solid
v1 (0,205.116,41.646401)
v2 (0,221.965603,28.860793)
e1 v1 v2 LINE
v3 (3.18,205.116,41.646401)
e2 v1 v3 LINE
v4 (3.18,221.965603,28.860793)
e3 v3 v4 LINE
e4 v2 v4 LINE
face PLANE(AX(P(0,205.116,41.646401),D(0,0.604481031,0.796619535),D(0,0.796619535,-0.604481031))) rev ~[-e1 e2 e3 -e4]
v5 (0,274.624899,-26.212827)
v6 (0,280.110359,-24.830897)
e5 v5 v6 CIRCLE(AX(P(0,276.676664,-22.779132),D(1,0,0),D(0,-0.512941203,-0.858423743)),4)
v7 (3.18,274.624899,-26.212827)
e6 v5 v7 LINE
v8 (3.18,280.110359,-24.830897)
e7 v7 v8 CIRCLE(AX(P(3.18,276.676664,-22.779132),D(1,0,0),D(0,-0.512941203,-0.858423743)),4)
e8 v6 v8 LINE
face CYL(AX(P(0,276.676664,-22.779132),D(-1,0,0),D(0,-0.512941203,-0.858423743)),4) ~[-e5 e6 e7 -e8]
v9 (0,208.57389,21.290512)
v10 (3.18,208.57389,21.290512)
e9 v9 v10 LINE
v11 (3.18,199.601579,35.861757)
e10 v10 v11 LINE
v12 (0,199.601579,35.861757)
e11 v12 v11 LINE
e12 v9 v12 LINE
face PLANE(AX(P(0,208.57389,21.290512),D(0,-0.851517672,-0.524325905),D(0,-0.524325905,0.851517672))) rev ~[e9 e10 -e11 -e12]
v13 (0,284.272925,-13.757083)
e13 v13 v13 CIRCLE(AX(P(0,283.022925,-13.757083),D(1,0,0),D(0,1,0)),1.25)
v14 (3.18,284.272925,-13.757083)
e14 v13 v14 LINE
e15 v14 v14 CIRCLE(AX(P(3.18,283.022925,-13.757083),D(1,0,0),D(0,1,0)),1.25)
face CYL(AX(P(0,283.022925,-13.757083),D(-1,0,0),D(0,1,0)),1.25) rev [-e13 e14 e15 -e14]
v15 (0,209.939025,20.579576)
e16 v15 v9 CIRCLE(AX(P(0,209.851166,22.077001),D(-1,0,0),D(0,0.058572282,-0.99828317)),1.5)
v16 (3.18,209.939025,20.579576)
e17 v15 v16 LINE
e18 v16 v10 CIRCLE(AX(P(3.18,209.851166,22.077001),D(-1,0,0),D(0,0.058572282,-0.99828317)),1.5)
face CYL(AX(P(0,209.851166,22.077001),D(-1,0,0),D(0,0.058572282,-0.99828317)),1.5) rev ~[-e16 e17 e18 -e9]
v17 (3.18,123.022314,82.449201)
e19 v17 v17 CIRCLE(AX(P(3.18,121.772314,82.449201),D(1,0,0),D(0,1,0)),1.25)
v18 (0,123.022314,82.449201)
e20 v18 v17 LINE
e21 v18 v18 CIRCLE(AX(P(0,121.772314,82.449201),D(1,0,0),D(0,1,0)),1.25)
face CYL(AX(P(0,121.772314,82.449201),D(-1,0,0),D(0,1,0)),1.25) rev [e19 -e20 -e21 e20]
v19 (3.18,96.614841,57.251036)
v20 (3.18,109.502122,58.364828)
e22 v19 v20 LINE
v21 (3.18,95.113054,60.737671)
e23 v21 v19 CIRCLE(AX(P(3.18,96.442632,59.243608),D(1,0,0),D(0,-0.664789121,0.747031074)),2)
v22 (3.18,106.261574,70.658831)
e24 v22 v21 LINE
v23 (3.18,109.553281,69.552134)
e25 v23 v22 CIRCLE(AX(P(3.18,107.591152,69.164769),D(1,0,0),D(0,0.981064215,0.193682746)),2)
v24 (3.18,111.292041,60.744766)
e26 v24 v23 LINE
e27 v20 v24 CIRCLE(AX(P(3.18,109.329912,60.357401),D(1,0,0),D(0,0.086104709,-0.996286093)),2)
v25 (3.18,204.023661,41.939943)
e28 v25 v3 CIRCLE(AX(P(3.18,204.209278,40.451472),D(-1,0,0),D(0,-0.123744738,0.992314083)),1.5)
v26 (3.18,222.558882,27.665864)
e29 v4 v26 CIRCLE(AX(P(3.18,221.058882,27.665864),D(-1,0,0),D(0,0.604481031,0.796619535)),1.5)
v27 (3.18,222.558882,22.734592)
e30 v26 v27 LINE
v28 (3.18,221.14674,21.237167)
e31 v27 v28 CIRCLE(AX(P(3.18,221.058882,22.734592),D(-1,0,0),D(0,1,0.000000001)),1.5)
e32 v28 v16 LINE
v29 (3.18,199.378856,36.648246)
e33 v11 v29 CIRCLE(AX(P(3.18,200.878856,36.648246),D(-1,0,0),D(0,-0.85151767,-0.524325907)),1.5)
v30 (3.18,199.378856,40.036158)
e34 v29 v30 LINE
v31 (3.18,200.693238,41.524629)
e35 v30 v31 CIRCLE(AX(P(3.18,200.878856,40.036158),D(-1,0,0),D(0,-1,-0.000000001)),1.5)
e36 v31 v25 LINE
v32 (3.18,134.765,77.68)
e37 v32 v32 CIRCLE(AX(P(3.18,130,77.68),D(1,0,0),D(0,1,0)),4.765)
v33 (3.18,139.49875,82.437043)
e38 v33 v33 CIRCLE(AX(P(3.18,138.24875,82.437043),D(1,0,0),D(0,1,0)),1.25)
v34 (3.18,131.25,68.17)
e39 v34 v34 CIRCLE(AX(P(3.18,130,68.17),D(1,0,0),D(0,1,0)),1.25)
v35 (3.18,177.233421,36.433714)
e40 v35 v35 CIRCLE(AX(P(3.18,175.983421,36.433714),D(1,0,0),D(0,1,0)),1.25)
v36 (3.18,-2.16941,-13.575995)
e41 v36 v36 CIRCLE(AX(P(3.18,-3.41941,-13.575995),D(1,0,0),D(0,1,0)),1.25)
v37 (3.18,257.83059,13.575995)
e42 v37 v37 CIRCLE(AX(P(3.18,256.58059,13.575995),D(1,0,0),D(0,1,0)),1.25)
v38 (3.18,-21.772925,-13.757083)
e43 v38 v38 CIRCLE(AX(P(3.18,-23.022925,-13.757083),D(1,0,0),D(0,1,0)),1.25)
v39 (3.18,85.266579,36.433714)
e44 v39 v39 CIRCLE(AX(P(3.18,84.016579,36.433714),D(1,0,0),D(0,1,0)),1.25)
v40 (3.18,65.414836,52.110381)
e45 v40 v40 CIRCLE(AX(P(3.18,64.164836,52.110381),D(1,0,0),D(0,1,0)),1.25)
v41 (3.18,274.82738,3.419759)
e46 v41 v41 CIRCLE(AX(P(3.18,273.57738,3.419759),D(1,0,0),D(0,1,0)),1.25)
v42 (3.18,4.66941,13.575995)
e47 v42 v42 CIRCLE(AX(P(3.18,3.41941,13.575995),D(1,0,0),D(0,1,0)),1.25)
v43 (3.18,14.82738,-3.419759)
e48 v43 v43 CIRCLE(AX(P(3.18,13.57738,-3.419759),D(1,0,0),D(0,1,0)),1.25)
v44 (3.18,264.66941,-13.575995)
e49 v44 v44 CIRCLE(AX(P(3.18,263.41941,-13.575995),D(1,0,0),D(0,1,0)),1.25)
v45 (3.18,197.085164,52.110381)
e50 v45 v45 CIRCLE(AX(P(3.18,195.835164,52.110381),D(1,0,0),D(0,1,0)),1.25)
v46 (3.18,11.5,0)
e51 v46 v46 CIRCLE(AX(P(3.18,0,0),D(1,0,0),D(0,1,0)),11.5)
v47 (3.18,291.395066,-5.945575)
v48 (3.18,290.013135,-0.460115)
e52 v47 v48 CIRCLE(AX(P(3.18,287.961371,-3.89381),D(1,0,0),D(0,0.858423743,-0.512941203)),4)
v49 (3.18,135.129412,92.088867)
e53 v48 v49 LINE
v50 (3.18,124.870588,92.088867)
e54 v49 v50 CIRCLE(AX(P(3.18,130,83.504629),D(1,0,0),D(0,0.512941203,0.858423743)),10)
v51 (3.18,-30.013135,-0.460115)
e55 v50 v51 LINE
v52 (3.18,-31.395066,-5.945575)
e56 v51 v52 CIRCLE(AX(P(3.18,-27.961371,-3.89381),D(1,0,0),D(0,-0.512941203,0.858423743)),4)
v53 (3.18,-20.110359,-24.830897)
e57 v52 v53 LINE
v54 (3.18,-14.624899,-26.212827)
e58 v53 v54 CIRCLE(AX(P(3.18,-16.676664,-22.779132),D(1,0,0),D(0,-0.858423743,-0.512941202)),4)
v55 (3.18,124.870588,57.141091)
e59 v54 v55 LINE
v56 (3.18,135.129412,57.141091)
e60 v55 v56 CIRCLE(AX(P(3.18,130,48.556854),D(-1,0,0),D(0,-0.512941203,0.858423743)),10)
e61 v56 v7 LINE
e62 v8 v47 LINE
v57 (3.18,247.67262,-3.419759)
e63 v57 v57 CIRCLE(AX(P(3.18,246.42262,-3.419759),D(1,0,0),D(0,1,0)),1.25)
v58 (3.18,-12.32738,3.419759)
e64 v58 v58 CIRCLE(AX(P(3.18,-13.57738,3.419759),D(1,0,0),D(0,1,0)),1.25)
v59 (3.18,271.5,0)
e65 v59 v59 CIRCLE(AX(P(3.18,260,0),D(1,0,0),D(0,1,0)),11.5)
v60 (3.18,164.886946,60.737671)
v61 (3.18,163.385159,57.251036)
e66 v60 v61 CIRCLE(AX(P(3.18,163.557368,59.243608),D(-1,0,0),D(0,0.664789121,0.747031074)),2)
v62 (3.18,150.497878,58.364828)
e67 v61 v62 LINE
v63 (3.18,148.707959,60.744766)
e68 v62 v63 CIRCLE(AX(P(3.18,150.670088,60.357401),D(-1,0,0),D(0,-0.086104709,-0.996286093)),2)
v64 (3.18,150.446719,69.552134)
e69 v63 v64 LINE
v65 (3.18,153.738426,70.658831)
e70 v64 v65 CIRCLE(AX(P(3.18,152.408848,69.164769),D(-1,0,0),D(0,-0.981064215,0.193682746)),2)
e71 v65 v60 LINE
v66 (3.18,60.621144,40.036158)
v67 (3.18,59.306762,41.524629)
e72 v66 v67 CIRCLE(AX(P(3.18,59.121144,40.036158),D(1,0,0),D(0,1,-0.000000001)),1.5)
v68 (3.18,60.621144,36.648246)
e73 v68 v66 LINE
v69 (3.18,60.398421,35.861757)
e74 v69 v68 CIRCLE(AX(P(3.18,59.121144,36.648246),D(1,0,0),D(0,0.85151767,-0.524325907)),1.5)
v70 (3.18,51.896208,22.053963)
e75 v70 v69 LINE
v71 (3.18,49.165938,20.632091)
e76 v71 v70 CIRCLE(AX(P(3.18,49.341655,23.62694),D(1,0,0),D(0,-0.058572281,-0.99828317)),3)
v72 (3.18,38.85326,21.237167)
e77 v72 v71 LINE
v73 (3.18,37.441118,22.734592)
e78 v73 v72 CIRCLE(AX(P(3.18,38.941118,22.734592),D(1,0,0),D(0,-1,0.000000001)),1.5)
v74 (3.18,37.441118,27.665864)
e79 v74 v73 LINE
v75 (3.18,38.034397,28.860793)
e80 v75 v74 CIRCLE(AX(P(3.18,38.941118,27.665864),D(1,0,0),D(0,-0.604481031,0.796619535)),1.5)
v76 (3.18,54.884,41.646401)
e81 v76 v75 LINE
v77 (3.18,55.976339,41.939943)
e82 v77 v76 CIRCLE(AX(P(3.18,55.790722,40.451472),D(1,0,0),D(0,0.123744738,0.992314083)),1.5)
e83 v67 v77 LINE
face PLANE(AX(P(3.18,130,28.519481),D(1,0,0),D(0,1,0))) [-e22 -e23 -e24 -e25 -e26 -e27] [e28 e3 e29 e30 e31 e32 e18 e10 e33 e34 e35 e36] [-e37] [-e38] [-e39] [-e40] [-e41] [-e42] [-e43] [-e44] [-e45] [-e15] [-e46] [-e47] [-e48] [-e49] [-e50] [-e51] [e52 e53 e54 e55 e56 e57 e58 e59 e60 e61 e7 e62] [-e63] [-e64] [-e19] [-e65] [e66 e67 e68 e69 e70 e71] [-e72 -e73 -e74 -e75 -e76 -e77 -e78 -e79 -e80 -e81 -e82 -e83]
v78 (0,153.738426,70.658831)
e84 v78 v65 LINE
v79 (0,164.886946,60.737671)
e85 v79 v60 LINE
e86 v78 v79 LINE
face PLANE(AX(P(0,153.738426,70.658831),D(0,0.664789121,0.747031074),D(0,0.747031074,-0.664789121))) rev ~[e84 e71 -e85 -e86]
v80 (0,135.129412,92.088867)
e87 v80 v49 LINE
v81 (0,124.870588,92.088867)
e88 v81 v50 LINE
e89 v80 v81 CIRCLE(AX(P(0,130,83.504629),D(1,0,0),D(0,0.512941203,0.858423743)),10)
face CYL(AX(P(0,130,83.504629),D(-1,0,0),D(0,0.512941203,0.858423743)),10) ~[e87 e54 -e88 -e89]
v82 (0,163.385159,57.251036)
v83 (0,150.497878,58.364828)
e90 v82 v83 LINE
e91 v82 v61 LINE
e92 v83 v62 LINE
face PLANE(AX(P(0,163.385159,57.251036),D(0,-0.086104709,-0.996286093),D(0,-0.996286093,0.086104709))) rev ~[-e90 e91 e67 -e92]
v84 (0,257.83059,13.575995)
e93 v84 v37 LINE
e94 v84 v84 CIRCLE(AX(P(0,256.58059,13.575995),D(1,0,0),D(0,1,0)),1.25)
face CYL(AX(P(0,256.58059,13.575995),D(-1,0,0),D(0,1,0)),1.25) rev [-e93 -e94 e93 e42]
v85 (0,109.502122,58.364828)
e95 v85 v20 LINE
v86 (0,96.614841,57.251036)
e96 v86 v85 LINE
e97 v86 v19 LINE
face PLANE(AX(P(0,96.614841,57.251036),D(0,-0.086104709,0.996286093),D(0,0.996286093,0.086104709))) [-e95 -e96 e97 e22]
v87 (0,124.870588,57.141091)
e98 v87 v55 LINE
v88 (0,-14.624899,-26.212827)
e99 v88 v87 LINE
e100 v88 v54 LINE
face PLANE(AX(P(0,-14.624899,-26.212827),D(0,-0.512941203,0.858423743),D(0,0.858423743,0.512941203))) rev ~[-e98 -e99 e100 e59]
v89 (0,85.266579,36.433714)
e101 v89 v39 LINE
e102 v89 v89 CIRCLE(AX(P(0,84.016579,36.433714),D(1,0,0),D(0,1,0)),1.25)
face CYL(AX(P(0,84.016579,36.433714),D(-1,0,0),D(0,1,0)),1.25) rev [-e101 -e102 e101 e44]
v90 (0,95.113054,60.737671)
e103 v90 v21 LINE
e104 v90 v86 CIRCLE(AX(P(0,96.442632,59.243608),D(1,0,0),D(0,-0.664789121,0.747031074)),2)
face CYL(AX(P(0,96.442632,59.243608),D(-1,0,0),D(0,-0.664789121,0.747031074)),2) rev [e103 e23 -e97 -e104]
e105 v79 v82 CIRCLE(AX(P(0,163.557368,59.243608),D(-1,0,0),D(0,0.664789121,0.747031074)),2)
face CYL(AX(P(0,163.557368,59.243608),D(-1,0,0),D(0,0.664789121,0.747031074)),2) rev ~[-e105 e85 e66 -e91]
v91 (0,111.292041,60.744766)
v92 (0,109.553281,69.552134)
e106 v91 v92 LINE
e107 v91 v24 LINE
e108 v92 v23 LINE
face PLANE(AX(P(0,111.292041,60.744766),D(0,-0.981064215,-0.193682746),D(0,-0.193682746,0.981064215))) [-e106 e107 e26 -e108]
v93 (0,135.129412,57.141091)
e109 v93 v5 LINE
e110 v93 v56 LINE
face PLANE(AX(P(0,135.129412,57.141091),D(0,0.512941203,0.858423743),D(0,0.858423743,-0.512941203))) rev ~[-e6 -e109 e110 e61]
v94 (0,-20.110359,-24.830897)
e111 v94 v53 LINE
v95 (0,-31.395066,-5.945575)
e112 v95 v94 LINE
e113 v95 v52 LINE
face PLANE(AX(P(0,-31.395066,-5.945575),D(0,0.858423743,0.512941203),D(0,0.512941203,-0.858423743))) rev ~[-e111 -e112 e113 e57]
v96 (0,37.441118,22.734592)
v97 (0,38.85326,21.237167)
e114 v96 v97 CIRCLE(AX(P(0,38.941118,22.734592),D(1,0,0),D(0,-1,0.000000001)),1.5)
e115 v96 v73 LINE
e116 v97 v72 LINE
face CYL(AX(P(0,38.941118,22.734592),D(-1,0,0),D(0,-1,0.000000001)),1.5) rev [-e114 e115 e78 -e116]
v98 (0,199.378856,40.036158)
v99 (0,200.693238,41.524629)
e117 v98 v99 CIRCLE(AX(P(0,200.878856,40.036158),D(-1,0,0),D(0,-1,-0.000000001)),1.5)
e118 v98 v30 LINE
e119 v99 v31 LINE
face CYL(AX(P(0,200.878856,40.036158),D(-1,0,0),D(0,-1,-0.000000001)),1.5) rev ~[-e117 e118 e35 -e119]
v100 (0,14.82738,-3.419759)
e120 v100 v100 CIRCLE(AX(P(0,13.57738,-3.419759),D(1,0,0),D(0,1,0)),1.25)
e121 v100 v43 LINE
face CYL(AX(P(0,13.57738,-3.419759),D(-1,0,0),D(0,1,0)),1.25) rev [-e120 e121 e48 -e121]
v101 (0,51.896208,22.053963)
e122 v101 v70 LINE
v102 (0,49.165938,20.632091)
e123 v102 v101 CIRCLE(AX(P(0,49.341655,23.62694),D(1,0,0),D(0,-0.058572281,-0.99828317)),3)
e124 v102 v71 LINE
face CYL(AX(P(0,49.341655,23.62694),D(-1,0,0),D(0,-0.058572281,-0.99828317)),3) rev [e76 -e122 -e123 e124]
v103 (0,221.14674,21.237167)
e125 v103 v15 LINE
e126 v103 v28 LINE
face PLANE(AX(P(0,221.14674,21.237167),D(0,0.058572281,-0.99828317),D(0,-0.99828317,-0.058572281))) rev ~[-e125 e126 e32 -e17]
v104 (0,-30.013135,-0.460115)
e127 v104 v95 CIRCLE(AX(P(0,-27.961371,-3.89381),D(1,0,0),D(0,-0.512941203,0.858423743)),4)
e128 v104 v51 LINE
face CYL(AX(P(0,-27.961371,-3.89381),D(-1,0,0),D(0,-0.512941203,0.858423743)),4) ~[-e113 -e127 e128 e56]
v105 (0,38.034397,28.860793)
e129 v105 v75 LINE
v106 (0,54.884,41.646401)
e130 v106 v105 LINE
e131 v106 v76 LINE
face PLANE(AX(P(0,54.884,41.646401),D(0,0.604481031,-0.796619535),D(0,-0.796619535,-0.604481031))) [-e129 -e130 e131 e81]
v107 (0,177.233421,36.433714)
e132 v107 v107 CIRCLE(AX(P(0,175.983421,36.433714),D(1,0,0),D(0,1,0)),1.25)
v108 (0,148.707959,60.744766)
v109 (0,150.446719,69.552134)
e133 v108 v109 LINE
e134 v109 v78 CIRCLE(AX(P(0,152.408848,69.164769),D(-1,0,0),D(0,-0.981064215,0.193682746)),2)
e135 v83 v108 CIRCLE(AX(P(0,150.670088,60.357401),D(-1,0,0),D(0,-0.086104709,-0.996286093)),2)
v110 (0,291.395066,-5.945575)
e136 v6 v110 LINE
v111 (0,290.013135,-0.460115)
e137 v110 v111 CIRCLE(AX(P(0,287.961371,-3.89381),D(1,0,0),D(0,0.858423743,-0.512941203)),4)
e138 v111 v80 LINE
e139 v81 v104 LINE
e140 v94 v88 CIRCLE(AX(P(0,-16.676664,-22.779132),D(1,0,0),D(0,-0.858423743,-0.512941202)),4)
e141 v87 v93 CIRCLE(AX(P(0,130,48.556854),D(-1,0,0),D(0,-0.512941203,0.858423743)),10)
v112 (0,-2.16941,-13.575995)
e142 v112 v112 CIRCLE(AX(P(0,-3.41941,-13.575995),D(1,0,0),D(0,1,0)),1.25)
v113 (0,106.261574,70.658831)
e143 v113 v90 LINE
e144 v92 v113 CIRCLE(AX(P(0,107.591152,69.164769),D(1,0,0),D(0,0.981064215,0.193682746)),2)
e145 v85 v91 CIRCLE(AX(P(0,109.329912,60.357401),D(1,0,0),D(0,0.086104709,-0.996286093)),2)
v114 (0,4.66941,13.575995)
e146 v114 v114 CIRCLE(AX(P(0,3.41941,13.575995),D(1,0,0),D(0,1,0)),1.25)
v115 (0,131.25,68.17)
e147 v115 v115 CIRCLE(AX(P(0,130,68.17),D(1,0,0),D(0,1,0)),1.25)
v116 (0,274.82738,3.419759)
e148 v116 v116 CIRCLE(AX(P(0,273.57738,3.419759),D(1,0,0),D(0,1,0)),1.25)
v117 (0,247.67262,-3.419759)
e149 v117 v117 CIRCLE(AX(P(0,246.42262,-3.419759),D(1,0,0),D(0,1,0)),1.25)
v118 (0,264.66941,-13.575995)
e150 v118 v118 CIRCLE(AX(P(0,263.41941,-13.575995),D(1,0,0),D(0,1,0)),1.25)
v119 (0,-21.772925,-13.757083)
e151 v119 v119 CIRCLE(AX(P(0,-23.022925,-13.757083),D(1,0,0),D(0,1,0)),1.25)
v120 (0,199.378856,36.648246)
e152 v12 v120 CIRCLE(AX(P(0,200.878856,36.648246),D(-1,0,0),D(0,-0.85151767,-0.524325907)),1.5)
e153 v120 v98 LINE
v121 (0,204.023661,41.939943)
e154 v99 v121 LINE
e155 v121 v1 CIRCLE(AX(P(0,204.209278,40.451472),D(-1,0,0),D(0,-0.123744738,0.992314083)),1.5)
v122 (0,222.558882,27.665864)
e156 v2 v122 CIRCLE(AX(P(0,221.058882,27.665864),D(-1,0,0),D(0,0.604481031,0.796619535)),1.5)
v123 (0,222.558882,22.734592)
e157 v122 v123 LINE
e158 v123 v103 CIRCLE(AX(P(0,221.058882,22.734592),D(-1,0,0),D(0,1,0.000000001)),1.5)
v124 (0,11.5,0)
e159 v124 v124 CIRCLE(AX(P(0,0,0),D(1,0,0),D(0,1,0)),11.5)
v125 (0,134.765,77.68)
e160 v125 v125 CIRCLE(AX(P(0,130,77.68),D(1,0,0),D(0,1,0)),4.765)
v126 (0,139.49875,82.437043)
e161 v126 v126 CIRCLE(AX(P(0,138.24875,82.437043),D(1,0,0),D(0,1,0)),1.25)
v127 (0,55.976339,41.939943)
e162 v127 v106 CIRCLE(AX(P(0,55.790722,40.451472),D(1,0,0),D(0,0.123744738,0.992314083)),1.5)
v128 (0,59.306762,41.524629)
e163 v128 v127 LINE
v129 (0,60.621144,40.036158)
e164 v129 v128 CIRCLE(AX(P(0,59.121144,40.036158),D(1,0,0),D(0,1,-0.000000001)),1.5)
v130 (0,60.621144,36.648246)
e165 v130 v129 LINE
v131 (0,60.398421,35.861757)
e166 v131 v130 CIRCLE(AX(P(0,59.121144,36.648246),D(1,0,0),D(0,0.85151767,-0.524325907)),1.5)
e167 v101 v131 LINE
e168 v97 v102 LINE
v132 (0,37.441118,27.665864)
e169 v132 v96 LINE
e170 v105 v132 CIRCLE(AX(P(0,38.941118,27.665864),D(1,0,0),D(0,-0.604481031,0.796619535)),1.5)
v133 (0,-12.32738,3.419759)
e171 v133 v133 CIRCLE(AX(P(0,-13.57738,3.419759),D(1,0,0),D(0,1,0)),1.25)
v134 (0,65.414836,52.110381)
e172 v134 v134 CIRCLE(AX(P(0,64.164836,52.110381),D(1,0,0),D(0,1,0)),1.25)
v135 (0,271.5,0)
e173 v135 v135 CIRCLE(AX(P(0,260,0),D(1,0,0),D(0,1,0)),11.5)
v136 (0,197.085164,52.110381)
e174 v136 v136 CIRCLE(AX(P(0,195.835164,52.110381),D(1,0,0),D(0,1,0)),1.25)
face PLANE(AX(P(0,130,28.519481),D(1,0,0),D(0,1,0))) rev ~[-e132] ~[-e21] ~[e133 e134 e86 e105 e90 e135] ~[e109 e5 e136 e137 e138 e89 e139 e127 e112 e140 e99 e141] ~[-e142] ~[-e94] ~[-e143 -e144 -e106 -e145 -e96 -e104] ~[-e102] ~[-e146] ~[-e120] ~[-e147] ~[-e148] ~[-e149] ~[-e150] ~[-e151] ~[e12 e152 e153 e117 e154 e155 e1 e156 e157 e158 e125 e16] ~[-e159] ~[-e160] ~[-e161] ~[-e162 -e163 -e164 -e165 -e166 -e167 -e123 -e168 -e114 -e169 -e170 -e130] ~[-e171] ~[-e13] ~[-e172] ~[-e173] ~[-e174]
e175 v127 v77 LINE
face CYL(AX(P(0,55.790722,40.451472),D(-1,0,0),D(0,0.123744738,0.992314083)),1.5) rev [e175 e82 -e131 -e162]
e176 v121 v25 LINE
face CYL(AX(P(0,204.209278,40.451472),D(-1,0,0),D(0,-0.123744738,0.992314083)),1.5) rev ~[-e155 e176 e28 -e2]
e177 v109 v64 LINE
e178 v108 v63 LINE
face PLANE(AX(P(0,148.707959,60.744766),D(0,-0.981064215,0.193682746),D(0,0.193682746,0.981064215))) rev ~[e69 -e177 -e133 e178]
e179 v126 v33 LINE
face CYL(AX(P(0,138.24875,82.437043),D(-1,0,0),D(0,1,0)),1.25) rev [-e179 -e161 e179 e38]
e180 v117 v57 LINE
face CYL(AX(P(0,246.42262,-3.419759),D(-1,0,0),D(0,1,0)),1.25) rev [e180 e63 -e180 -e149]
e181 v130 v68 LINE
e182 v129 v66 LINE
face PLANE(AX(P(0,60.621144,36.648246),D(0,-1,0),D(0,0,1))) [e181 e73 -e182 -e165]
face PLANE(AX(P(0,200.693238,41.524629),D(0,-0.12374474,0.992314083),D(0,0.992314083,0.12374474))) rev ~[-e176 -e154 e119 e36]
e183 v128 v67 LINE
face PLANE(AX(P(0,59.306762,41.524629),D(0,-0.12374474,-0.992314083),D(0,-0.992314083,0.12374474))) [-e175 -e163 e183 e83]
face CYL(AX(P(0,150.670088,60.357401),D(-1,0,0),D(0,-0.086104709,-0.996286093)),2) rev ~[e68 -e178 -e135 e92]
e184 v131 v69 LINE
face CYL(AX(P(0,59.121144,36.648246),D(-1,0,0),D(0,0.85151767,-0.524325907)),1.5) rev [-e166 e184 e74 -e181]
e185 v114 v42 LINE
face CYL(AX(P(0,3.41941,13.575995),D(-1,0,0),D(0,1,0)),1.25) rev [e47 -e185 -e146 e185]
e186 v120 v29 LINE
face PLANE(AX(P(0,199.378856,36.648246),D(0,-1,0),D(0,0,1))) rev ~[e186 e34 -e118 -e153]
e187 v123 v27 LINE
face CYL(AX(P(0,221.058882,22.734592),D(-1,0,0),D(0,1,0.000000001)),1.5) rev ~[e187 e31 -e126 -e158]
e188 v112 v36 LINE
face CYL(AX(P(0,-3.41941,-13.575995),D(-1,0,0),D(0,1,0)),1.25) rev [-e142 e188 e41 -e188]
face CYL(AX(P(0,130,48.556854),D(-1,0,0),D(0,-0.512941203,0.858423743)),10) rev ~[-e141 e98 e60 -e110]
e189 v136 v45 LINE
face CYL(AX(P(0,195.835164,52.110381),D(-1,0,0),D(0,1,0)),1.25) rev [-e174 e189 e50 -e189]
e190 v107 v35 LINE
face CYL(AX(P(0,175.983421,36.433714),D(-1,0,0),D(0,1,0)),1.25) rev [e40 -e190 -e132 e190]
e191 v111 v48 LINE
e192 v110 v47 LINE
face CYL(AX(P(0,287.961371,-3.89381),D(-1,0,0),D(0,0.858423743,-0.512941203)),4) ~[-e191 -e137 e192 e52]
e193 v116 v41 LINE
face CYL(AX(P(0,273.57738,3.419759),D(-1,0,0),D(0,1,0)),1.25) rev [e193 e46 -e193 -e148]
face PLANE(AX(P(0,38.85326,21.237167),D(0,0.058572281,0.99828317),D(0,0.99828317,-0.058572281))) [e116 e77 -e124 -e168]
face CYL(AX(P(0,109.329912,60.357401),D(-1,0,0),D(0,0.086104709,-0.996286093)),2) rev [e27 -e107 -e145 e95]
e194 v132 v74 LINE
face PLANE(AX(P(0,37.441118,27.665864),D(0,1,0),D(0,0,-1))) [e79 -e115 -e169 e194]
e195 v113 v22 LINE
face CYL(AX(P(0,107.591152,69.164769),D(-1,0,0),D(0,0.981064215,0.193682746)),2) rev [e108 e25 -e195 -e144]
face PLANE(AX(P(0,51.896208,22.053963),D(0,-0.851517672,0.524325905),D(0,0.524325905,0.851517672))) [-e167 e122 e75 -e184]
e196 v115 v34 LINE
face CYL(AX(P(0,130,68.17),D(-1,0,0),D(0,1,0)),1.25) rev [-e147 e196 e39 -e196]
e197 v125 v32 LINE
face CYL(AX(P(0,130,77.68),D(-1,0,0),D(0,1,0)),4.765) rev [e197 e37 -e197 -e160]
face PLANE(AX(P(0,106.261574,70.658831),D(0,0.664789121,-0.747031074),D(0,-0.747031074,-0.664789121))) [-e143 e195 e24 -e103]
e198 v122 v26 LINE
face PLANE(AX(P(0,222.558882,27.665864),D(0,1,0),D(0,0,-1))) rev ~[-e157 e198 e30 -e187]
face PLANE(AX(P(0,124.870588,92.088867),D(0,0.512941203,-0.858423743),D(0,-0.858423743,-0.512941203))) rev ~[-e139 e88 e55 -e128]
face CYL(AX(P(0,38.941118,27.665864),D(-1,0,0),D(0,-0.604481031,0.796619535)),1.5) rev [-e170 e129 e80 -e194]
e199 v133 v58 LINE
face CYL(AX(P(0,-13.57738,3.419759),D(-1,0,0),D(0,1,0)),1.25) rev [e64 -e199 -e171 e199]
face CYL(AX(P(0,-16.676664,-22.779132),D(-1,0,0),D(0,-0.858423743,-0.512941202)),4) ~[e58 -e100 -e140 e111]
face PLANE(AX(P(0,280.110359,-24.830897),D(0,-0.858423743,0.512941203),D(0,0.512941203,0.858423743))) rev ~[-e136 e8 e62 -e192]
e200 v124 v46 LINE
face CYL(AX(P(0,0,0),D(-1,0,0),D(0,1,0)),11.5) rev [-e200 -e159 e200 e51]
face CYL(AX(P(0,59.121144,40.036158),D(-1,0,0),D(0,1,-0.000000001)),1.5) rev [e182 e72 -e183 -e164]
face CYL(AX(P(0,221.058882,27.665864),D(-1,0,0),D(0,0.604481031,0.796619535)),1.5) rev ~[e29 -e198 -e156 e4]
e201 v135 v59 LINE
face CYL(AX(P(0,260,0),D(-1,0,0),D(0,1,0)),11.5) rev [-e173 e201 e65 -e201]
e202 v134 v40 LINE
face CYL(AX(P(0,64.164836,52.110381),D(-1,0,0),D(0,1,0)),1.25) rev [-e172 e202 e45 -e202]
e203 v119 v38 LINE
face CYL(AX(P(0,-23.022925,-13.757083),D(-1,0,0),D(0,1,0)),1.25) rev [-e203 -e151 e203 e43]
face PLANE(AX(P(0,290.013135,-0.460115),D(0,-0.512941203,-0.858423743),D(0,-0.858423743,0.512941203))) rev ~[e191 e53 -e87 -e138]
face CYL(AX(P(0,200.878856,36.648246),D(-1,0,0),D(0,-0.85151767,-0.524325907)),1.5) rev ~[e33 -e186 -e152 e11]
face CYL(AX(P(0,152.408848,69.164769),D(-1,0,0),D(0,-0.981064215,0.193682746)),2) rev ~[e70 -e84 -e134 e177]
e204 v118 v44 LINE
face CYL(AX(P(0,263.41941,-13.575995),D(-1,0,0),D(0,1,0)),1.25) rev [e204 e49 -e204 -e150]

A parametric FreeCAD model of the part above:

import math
import FreeCAD as App
import Part
import Sketcher

V = App.Vector

doc = App.newDocument("Part")
body = doc.addObject("PartDesign::Body", "Body")

# Sketch on YZ plane
sketch1 = body.newObject("Sketcher::SketchObject", "Sketch")
sketch1.AttachmentSupport = (doc.getObject("YZ_Plane"), [""])
sketch1.MapMode = "FlatFace"
sketch1.addGeometry(Part.LineSegment(V(-31.395066, -5.945575, 0), V(-20.110359, -24.830897, 0)), False)
sketch1.addGeometry(Part.ArcOfCircle(Part.Circle(V(-16.676664, -22.779132, 0), V(0, 0, 1), 4), math.radians(-149.140059), math.radians(-59.140059)), False)
sketch1.addGeometry(Part.LineSegment(V(-14.624899, -26.212827, 0), V(124.870588, 57.141091, 0)), False)
sketch1.addGeometry(Part.ArcOfCircle(Part.Circle(V(130, 48.556854, 0), V(0, 0, 1), 10), math.radians(59.140059), math.radians(120.859941)), False)
sketch1.addGeometry(Part.LineSegment(V(135.129412, 57.141091, 0), V(274.624899, -26.212827, 0)), False)
sketch1.addGeometry(Part.ArcOfCircle(Part.Circle(V(276.676664, -22.779132, 0), V(0, 0, 1), 4), math.radians(-120.859941), math.radians(-30.859941)), False)
sketch1.addGeometry(Part.LineSegment(V(280.110359, -24.830897, 0), V(291.395066, -5.945575, 0)), False)
sketch1.addGeometry(Part.ArcOfCircle(Part.Circle(V(287.961371, -3.89381, 0), V(0, 0, 1), 4), math.radians(-30.859941), math.radians(59.140059)), False)
sketch1.addGeometry(Part.LineSegment(V(290.013135, -0.460115, 0), V(135.129412, 92.088867, 0)), False)
sketch1.addGeometry(Part.ArcOfCircle(Part.Circle(V(130, 83.504629, 0), V(0, 0, 1), 10), math.radians(59.140059), math.radians(120.859941)), False)
sketch1.addGeometry(Part.LineSegment(V(124.870588, 92.088867, 0), V(-30.013135, -0.460115, 0)), False)
sketch1.addGeometry(Part.ArcOfCircle(Part.Circle(V(-27.961371, -3.89381, 0), V(0, 0, 1), 4), math.radians(120.859941), math.radians(210.859941)), False)
sketch1.addConstraint(Sketcher.Constraint("Tangent", 0, 2, 1, 1))
sketch1.addConstraint(Sketcher.Constraint("Tangent", 1, 2, 2, 1))
sketch1.addConstraint(Sketcher.Constraint("Tangent", 2, 2, 3, 2))
sketch1.addConstraint(Sketcher.Constraint("Tangent", 3, 1, 4, 1))
sketch1.addConstraint(Sketcher.Constraint("Tangent", 4, 2, 5, 1))
sketch1.addConstraint(Sketcher.Constraint("Tangent", 5, 2, 6, 1))
sketch1.addConstraint(Sketcher.Constraint("Tangent", 6, 2, 7, 1))
sketch1.addConstraint(Sketcher.Constraint("Tangent", 7, 2, 8, 1))
sketch1.addConstraint(Sketcher.Constraint("Tangent", 8, 2, 9, 1))
sketch1.addConstraint(Sketcher.Constraint("Tangent", 9, 2, 10, 1))
sketch1.addConstraint(Sketcher.Constraint("Tangent", 10, 2, 11, 1))
sketch1.addConstraint(Sketcher.Constraint("Tangent", 11, 2, 0, 1))
sketch1.addConstraint(Sketcher.Constraint("Equal", 1, 5))
sketch1.addConstraint(Sketcher.Constraint("Equal", 5, 7))
sketch1.addConstraint(Sketcher.Constraint("Equal", 3, 9))
sketch1.addConstraint(Sketcher.Constraint("Equal", 7, 11))
sketch1.addConstraint(Sketcher.Constraint("Perpendicular", 0, 2))
sketch1.addConstraint(Sketcher.Constraint("Perpendicular", 4, 6))
sketch1.addConstraint(Sketcher.Constraint("Perpendicular", 6, 8))
sketch1.addConstraint(Sketcher.Constraint("Parallel", 2, 10))
sketch1.addConstraint(Sketcher.Constraint("Horizontal", 1, 3, 5, 3))
sketch1.addConstraint(Sketcher.Constraint("Horizontal", 7, 3, 11, 3))
sketch1.addConstraint(Sketcher.Constraint("Horizontal", 2, 2, 3, 1))
sketch1.addConstraint(Sketcher.Constraint("Radius", 1, 4.0))
sketch1.addConstraint(Sketcher.Constraint("Radius", 3, 10.0))
sketch1.addConstraint(Sketcher.Constraint("Distance", 0, 22.0))
sketch1.addConstraint(Sketcher.Constraint("DistanceX", -1, 1, 3, 3, 130.0))
sketch1.addConstraint(Sketcher.Constraint("DistanceX", 1, 2, -1, 1, 14.624899))
sketch1.addConstraint(Sketcher.Constraint("DistanceY", 11, 3, 2, 2, 61.034902))
sketch1.addConstraint(Sketcher.Constraint("DistanceY", 7, 3, -1, 1, 3.89381))
pad1 = body.newObject("PartDesign::Pad", "Pad")
pad1.Profile = sketch1
pad1.Length = 3.18

# Sketch on YZ plane
sketch2 = body.newObject("Sketcher::SketchObject", "Sketch001")
sketch2.AttachmentSupport = (doc.getObject("YZ_Plane"), [""])
sketch2.MapMode = "FlatFace"
sketch2.addGeometry(Part.Circle(V(260, 0, 0), V(0, 0, 1), 11.5), False)
sketch2.addGeometry(Part.Circle(V(0, 0, 0), V(0, 0, 1), 11.5), False)
sketch2.addConstraint(Sketcher.Constraint("Coincident", 1, 3, -1, 1))
sketch2.addConstraint(Sketcher.Constraint("Equal", 0, 1))
sketch2.addConstraint(Sketcher.Constraint("PointOnObject", 0, 3, -1))
sketch2.addConstraint(Sketcher.Constraint("Diameter", 0, 23.0))
sketch2.addConstraint(Sketcher.Constraint("DistanceX", -1, 1, 0, 3, 260.0))
pocket1 = body.newObject("PartDesign::Pocket", "Pocket")
pocket1.Profile = sketch2
pocket1.Length = 3.18
pocket1.Reversed = True

# Sketch on YZ plane
sketch3 = body.newObject("Sketcher::SketchObject", "Sketch002")
sketch3.AttachmentSupport = (doc.getObject("YZ_Plane"), [""])
sketch3.MapMode = "FlatFace"
sketch3.addGeometry(Part.Circle(V(3.41941, 13.575995, 0), V(0, 0, 1), 1.25), False)
sketch3.addGeometry(Part.Circle(V(-3.41941, -13.575995, 0), V(0, 0, 1), 1.25), False)
sketch3.addGeometry(Part.Circle(V(13.57738, -3.419759, 0), V(0, 0, 1), 1.25), False)
sketch3.addGeometry(Part.Circle(V(-13.57738, 3.419759, 0), V(0, 0, 1), 1.25), False)
sketch3.addGeometry(Part.Circle(V(273.57738, 3.419759, 0), V(0, 0, 1), 1.25), False)
sketch3.addGeometry(Part.Circle(V(246.42262, -3.419759, 0), V(0, 0, 1), 1.25), False)
sketch3.addGeometry(Part.Circle(V(263.41941, -13.575995, 0), V(0, 0, 1), 1.25), False)
sketch3.addGeometry(Part.Circle(V(256.58059, 13.575995, 0), V(0, 0, 1), 1.25), False)
sketch3.addConstraint(Sketcher.Constraint("Equal", 0, 1))
sketch3.addConstraint(Sketcher.Constraint("Equal", 1, 2))
sketch3.addConstraint(Sketcher.Constraint("Equal", 2, 3))
sketch3.addConstraint(Sketcher.Constraint("Equal", 3, 4))
sketch3.addConstraint(Sketcher.Constraint("Equal", 4, 5))
sketch3.addConstraint(Sketcher.Constraint("Equal", 5, 6))
sketch3.addConstraint(Sketcher.Constraint("Equal", 6, 7))
sketch3.addConstraint(Sketcher.Constraint("Symmetric", 0, 3, 1, 3, -1, 1))
sketch3.addConstraint(Sketcher.Constraint("Symmetric", 2, 3, 3, 3, -1, 1))
sketch3.addConstraint(Sketcher.Constraint("Horizontal", 3, 3, 4, 3))
sketch3.addConstraint(Sketcher.Constraint("Horizontal", 2, 3, 5, 3))
sketch3.addConstraint(Sketcher.Constraint("Horizontal", 1, 3, 6, 3))
sketch3.addConstraint(Sketcher.Constraint("Horizontal", 0, 3, 7, 3))
sketch3.addConstraint(Sketcher.Constraint("Diameter", 0, 2.5))
sketch3.addConstraint(Sketcher.Constraint("DistanceX", 2, 3, 4, 3, 260.0))
sketch3.addConstraint(Sketcher.Constraint("DistanceX", 3, 3, 5, 3, 260.0))
sketch3.addConstraint(Sketcher.Constraint("DistanceX", 0, 3, 6, 3, 260.0))
sketch3.addConstraint(Sketcher.Constraint("DistanceX", -1, 1, 0, 3, 3.41941))
sketch3.addConstraint(Sketcher.Constraint("DistanceX", -1, 1, 2, 3, 13.57738))
sketch3.addConstraint(Sketcher.Constraint("DistanceY", 2, 3, -1, 1, 3.419759))
sketch3.addConstraint(Sketcher.Constraint("DistanceX", -1, 1, 7, 3, 256.58059))
sketch3.addConstraint(Sketcher.Constraint("DistanceY", 1, 3, 0, 3, 27.15199))
pocket2 = body.newObject("PartDesign::Pocket", "Pocket001")
pocket2.Profile = sketch3
pocket2.Length = 3.18
pocket2.Reversed = True

# Sketch on YZ plane
sketch4 = body.newObject("Sketcher::SketchObject", "Sketch003")
sketch4.AttachmentSupport = (doc.getObject("YZ_Plane"), [""])
sketch4.MapMode = "FlatFace"
sketch4.addGeometry(Part.Circle(V(64.164836, 52.110381, 0), V(0, 0, 1), 1.25), False)
sketch4.addGeometry(Part.Circle(V(84.016579, 36.433714, 0), V(0, 0, 1), 1.25), False)
sketch4.addGeometry(Part.Circle(V(130, 77.68, 0), V(0, 0, 1), 4.765), False)
sketch4.addGeometry(Part.Circle(V(130, 68.17, 0), V(0, 0, 1), 1.25), False)
sketch4.addGeometry(Part.Circle(V(121.772314, 82.449201, 0), V(0, 0, 1), 1.25), False)
sketch4.addGeometry(Part.Circle(V(138.24875, 82.437043, 0), V(0, 0, 1), 1.25), False)
sketch4.addGeometry(Part.Circle(V(175.983421, 36.433714, 0), V(0, 0, 1), 1.25), False)
sketch4.addGeometry(Part.Circle(V(195.835164, 52.110381, 0), V(0, 0, 1), 1.25), False)
sketch4.addGeometry(Part.Circle(V(-23.022925, -13.757083, 0), V(0, 0, 1), 1.25), False)
sketch4.addGeometry(Part.Circle(V(283.022925, -13.757083, 0), V(0, 0, 1), 1.25), False)
sketch4.addConstraint(Sketcher.Constraint("Equal", 0, 1))
sketch4.addConstraint(Sketcher.Constraint("Equal", 1, 3))
sketch4.addConstraint(Sketcher.Constraint("Equal", 3, 4))
sketch4.addConstraint(Sketcher.Constraint("Equal", 4, 5))
sketch4.addConstraint(Sketcher.Constraint("Equal", 5, 6))
sketch4.addConstraint(Sketcher.Constraint("Equal", 6, 7))
sketch4.addConstraint(Sketcher.Constraint("Equal", 7, 8))
sketch4.addConstraint(Sketcher.Constraint("Equal", 8, 9))
sketch4.addConstraint(Sketcher.Constraint("Horizontal", 1, 3, 6, 3))
sketch4.addConstraint(Sketcher.Constraint("Horizontal", 0, 3, 7, 3))
sketch4.addConstraint(Sketcher.Constraint("Horizontal", 8, 3, 9, 3))
sketch4.addConstraint(Sketcher.Constraint("Vertical", 2, 3, 3, 3))
sketch4.addConstraint(Sketcher.Constraint("Diameter", 0, 2.5))
sketch4.addConstraint(Sketcher.Constraint("Diameter", 2, 9.53))
sketch4.addConstraint(Sketcher.Constraint("DistanceX", -1, 1, 2, 3, 130.0))
sketch4.addConstraint(Sketcher.Constraint("DistanceY", -1, 1, 2, 3, 77.68))
sketch4.addConstraint(Sketcher.Constraint("DistanceY", -1, 1, 3, 3, 68.17))
sketch4.addConstraint(Sketcher.Constraint("DistanceY", -1, 1, 4, 3, 82.449201))
sketch4.addConstraint(Sketcher.Constraint("DistanceY", -1, 1, 0, 3, 52.110381))
sketch4.addConstraint(Sketcher.Constraint("DistanceX", -1, 1, 1, 3, 84.016579))
sketch4.addConstraint(Sketcher.Constraint("DistanceX", -1, 1, 5, 3, 138.24875))
sketch4.addConstraint(Sketcher.Constraint("DistanceX", -1, 1, 6, 3, 175.983421))
sketch4.addConstraint(Sketcher.Constraint("DistanceX", 0, 3, 4, 3, 57.607478))
sketch4.addConstraint(Sketcher.Constraint("DistanceY", 1, 3, 5, 3, 46.003329))
sketch4.addConstraint(Sketcher.Constraint("DistanceX", 4, 3, 7, 3, 74.062851))
sketch4.addConstraint(Sketcher.Constraint("DistanceX", 8, 3, 0, 3, 87.18776))
sketch4.addConstraint(Sketcher.Constraint("DistanceX", 7, 3, 9, 3, 87.18776))
sketch4.addConstraint(Sketcher.Constraint("DistanceX", -1, 1, 0, 3, 64.164836))
sketch4.addConstraint(Sketcher.Constraint("DistanceY", -1, 1, 1, 3, 36.433714))
sketch4.addConstraint(Sketcher.Constraint("DistanceY", 8, 3, -1, 1, 13.757083))
pocket3 = body.newObject("PartDesign::Pocket", "Pocket002")
pocket3.Profile = sketch4
pocket3.Length = 3.18
pocket3.Reversed = True

# Sketch on YZ plane
sketch5 = body.newObject("Sketcher::SketchObject", "Sketch004")
sketch5.AttachmentSupport = (doc.getObject("YZ_Plane"), [""])
sketch5.MapMode = "FlatFace"
sketch5.addGeometry(Part.LineSegment(V(54.884, 41.646401, 0), V(38.034397, 28.860793, 0)), False)
sketch5.addGeometry(Part.ArcOfCircle(Part.Circle(V(38.941118, 27.665864, 0), V(0, 0, 1), 1.5), math.radians(127.191506), math.radians(180)), False)
sketch5.addGeometry(Part.LineSegment(V(37.441118, 27.665864, 0), V(37.441118, 22.734592, 0)), False)
sketch5.addGeometry(Part.ArcOfCircle(Part.Circle(V(38.941118, 22.734592, 0), V(0, 0, 1), 1.5), math.radians(180), math.radians(266.642134)), False)
sketch5.addGeometry(Part.LineSegment(V(38.85326, 21.237167, 0), V(49.165938, 20.632091, 0)), False)
sketch5.addGeometry(Part.ArcOfCircle(Part.Circle(V(49.341655, 23.62694, 0), V(0, 0, 1), 3), math.radians(-93.357866), math.radians(-31.622875)), False)
sketch5.addGeometry(Part.LineSegment(V(51.896208, 22.053963, 0), V(60.398421, 35.861757, 0)), False)
sketch5.addGeometry(Part.ArcOfCircle(Part.Circle(V(59.121144, 36.648246, 0), V(0, 0, 1), 1.5), math.radians(-31.622875), math.radians(0)), False)
sketch5.addGeometry(Part.LineSegment(V(60.621144, 36.648246, 0), V(60.621144, 40.036158, 0)), False)
sketch5.addGeometry(Part.ArcOfCircle(Part.Circle(V(59.121144, 40.036158, 0), V(0, 0, 1), 1.5), math.radians(0), math.radians(82.891728)), False)
sketch5.addGeometry(Part.LineSegment(V(59.306762, 41.524629, 0), V(55.976339, 41.939943, 0)), False)
sketch5.addGeometry(Part.ArcOfCircle(Part.Circle(V(55.790722, 40.451472, 0), V(0, 0, 1), 1.5), math.radians(82.891728), math.radians(127.191506)), False)
sketch5.addGeometry(Part.LineSegment(V(204.023661, 41.939943, 0), V(200.693238, 41.524629, 0)), False)
sketch5.addGeometry(Part.ArcOfCircle(Part.Circle(V(200.878856, 40.036158, 0), V(0, 0, 1), 1.5), math.radians(97.108272), math.radians(180)), False)
sketch5.addGeometry(Part.LineSegment(V(199.378856, 40.036158, 0), V(199.378856, 36.648246, 0)), False)
sketch5.addGeometry(Part.ArcOfCircle(Part.Circle(V(200.878856, 36.648246, 0), V(0, 0, 1), 1.5), math.radians(180), math.radians(211.622875)), False)
sketch5.addGeometry(Part.LineSegment(V(199.601579, 35.861757, 0), V(208.57389, 21.290512, 0)), False)
sketch5.addGeometry(Part.ArcOfCircle(Part.Circle(V(209.851166, 22.077001, 0), V(0, 0, 1), 1.5), math.radians(-148.377125), math.radians(-86.642134)), False)
sketch5.addGeometry(Part.LineSegment(V(209.939025, 20.579576, 0), V(221.14674, 21.237167, 0)), False)
sketch5.addGeometry(Part.ArcOfCircle(Part.Circle(V(221.058882, 22.734592, 0), V(0, 0, 1), 1.5), math.radians(-86.642134), math.radians(0)), False)
sketch5.addGeometry(Part.LineSegment(V(222.558882, 22.734592, 0), V(222.558882, 27.665864, 0)), False)
sketch5.addGeometry(Part.ArcOfCircle(Part.Circle(V(221.058882, 27.665864, 0), V(0, 0, 1), 1.5), math.radians(0), math.radians(52.808494)), False)
sketch5.addGeometry(Part.LineSegment(V(221.965603, 28.860793, 0), V(205.116, 41.646401, 0)), False)
sketch5.addGeometry(Part.ArcOfCircle(Part.Circle(V(204.209278, 40.451472, 0), V(0, 0, 1), 1.5), math.radians(52.808494), math.radians(97.108272)), False)
sketch5.addGeometry(Part.LineSegment(V(106.261574, 70.658831, 0), V(95.113054, 60.737671, 0)), False)
sketch5.addGeometry(Part.ArcOfCircle(Part.Circle(V(96.442632, 59.243608, 0), V(0, 0, 1), 2), math.radians(131.666149), math.radians(274.939553)), False)
sketch5.addGeometry(Part.LineSegment(V(96.614841, 57.251036, 0), V(109.502122, 58.364828, 0)), False)
sketch5.addGeometry(Part.ArcOfCircle(Part.Circle(V(109.329912, 60.3574, 0), V(0, 0, 1), 2), math.radians(-85.060447), math.radians(11.167784)), False)
sketch5.addGeometry(Part.LineSegment(V(111.292041, 60.744766, 0), V(109.553281, 69.552134, 0)), False)
sketch5.addGeometry(Part.ArcOfCircle(Part.Circle(V(107.591152, 69.164769, 0), V(0, 0, 1), 2), math.radians(11.167784), math.radians(131.666149)), False)
sketch5.addGeometry(Part.LineSegment(V(150.446719, 69.552134, 0), V(148.707959, 60.744766, 0)), False)
sketch5.addGeometry(Part.ArcOfCircle(Part.Circle(V(150.670088, 60.3574, 0), V(0, 0, 1), 2), math.radians(168.832216), math.radians(265.060447)), False)
sketch5.addGeometry(Part.LineSegment(V(150.497878, 58.364828, 0), V(163.385159, 57.251036, 0)), False)
sketch5.addGeometry(Part.ArcOfCircle(Part.Circle(V(163.557368, 59.243608, 0), V(0, 0, 1), 2), math.radians(-94.939553), math.radians(48.333851)), False)
sketch5.addGeometry(Part.LineSegment(V(164.886946, 60.737671, 0), V(153.738426, 70.658831, 0)), False)
sketch5.addGeometry(Part.ArcOfCircle(Part.Circle(V(152.408848, 69.164769, 0), V(0, 0, 1), 2), math.radians(48.333851), math.radians(168.832216)), False)
sketch5.addConstraint(Sketcher.Constraint("Tangent", 0, 2, 1, 1))
sketch5.addConstraint(Sketcher.Constraint("Tangent", 1, 2, 2, 1))
sketch5.addConstraint(Sketcher.Constraint("Tangent", 2, 2, 3, 1))
sketch5.addConstraint(Sketcher.Constraint("Tangent", 3, 2, 4, 1))
sketch5.addConstraint(Sketcher.Constraint("Tangent", 4, 2, 5, 1))
sketch5.addConstraint(Sketcher.Constraint("Tangent", 5, 2, 6, 1))
sketch5.addConstraint(Sketcher.Constraint("Tangent", 6, 2, 7, 1))
sketch5.addConstraint(Sketcher.Constraint("Tangent", 7, 2, 8, 1))
sketch5.addConstraint(Sketcher.Constraint("Tangent", 8, 2, 9, 1))
sketch5.addConstraint(Sketcher.Constraint("Tangent", 9, 2, 10, 1))
sketch5.addConstraint(Sketcher.Constraint("Tangent", 10, 2, 11, 1))
sketch5.addConstraint(Sketcher.Constraint("Tangent", 11, 2, 0, 1))
sketch5.addConstraint(Sketcher.Constraint("Tangent", 12, 2, 13, 1))
sketch5.addConstraint(Sketcher.Constraint("Tangent", 13, 2, 14, 1))
sketch5.addConstraint(Sketcher.Constraint("Tangent", 14, 2, 15, 1))
sketch5.addConstraint(Sketcher.Constraint("Tangent", 15, 2, 16, 1))
sketch5.addConstraint(Sketcher.Constraint("Tangent", 16, 2, 17, 1))
sketch5.addConstraint(Sketcher.Constraint("Tangent", 17, 2, 18, 1))
sketch5.addConstraint(Sketcher.Constraint("Tangent", 18, 2, 19, 1))
sketch5.addConstraint(Sketcher.Constraint("Tangent", 19, 2, 20, 1))
sketch5.addConstraint(Sketcher.Constraint("Tangent", 20, 2, 21, 1))
sketch5.addConstraint(Sketcher.Constraint("Tangent", 21, 2, 22, 1))
sketch5.addConstraint(Sketcher.Constraint("Tangent", 22, 2, 23, 1))
sketch5.addConstraint(Sketcher.Constraint("Tangent", 23, 2, 12, 1))
sketch5.addConstraint(Sketcher.Constraint("Tangent", 24, 2, 25, 1))
sketch5.addConstraint(Sketcher.Constraint("Tangent", 25, 2, 26, 1))
sketch5.addConstraint(Sketcher.Constraint("Tangent", 26, 2, 27, 1))
sketch5.addConstraint(Sketcher.Constraint("Tangent", 27, 2, 28, 1))
sketch5.addConstraint(Sketcher.Constraint("Tangent", 28, 2, 29, 1))
sketch5.addConstraint(Sketcher.Constraint("Tangent", 29, 2, 24, 1))
sketch5.addConstraint(Sketcher.Constraint("Tangent", 30, 2, 31, 1))
sketch5.addConstraint(Sketcher.Constraint("Tangent", 31, 2, 32, 1))
sketch5.addConstraint(Sketcher.Constraint("Tangent", 32, 2, 33, 1))
sketch5.addConstraint(Sketcher.Constraint("Tangent", 33, 2, 34, 1))
sketch5.addConstraint(Sketcher.Constraint("Tangent", 34, 2, 35, 1))
sketch5.addConstraint(Sketcher.Constraint("Tangent", 35, 2, 30, 1))
sketch5.addConstraint(Sketcher.Constraint("Vertical", 2))
sketch5.addConstraint(Sketcher.Constraint("Vertical", 8))
sketch5.addConstraint(Sketcher.Constraint("Vertical", 14))
sketch5.addConstraint(Sketcher.Constraint("Vertical", 20))
sketch5.addConstraint(Sketcher.Constraint("Equal", 1, 3))
sketch5.addConstraint(Sketcher.Constraint("Equal", 3, 7))
sketch5.addConstraint(Sketcher.Constraint("Equal", 7, 9))
sketch5.addConstraint(Sketcher.Constraint("Equal", 9, 11))
sketch5.addConstraint(Sketcher.Constraint("Equal", 11, 13))
sketch5.addConstraint(Sketcher.Constraint("Equal", 13, 15))
sketch5.addConstraint(Sketcher.Constraint("Equal", 15, 17))
sketch5.addConstraint(Sketcher.Constraint("Equal", 17, 19))
sketch5.addConstraint(Sketcher.Constraint("Equal", 19, 21))
sketch5.addConstraint(Sketcher.Constraint("Equal", 21, 23))
sketch5.addConstraint(Sketcher.Constraint("Equal", 25, 27))
sketch5.addConstraint(Sketcher.Constraint("Equal", 27, 29))
sketch5.addConstraint(Sketcher.Constraint("Equal", 29, 31))
sketch5.addConstraint(Sketcher.Constraint("Equal", 31, 33))
sketch5.addConstraint(Sketcher.Constraint("Equal", 33, 35))
sketch5.addConstraint(Sketcher.Constraint("Horizontal", 9, 3, 13, 3))
sketch5.addConstraint(Sketcher.Constraint("Horizontal", 7, 3, 15, 3))
sketch5.addConstraint(Sketcher.Constraint("Horizontal", 3, 3, 19, 3))
sketch5.addConstraint(Sketcher.Constraint("Horizontal", 1, 3, 21, 3))
sketch5.addConstraint(Sketcher.Constraint("Horizontal", 11, 3, 23, 3))
sketch5.addConstraint(Sketcher.Constraint("Horizontal", 27, 3, 31, 3))
sketch5.addConstraint(Sketcher.Constraint("Horizontal", 25, 3, 33, 3))
sketch5.addConstraint(Sketcher.Constraint("Horizontal", 29, 3, 35, 3))
sketch5.addConstraint(Sketcher.Constraint("Horizontal", 9, 2, 12, 2))
sketch5.addConstraint(Sketcher.Constraint("Horizontal", 6, 2, 15, 2))
sketch5.addConstraint(Sketcher.Constraint("Horizontal", 3, 2, 18, 2))
sketch5.addConstraint(Sketcher.Constraint("Horizontal", 0, 2, 21, 2))
sketch5.addConstraint(Sketcher.Constraint("Horizontal", 27, 2, 30, 2))
sketch5.addConstraint(Sketcher.Constraint("Horizontal", 24, 2, 33, 2))
sketch5.addConstraint(Sketcher.Constraint("Radius", 5, 3.0))
sketch5.addConstraint(Sketcher.Constraint("Radius", 25, 2.0))
sketch5.addConstraint(Sketcher.Constraint("Radius", 1, 1.5))
sketch5.addConstraint(Sketcher.Constraint("DistanceY", -1, 1, 17, 3, 22.077001))
sketch5.addConstraint(Sketcher.Constraint("DistanceX", -1, 1, 11, 2, 54.884))
sketch5.addConstraint(Sketcher.Constraint("DistanceX", -1, 1, 22, 2, 205.116))
sketch5.addConstraint(Sketcher.Constraint("DistanceY", 8, 1, 8, 2, 3.387912))
sketch5.addConstraint(Sketcher.Constraint("DistanceY", -1, 1, 27, 3, 60.3574))
sketch5.addConstraint(Sketcher.Constraint("DistanceY", -1, 1, 11, 2, 41.646401))
sketch5.addConstraint(Sketcher.Constraint("DistanceX", 5, 3, 13, 3, 151.5372))
sketch5.addConstraint(Sketcher.Constraint("DistanceY", 3, 3, 0, 2, 6.126201))
sketch5.addConstraint(Sketcher.Constraint("DistanceY", 4, 2, 3, 3, 2.102501))
sketch5.addConstraint(Sketcher.Constraint("DistanceY", 5, 2, 1, 3, 5.611901))
sketch5.addConstraint(Sketcher.Constraint("DistanceY", 6, 2, 9, 3, 4.174401))
sketch5.addConstraint(Sketcher.Constraint("DistanceX", 11, 3, 6, 2, 4.607699))
sketch5.addConstraint(Sketcher.Constraint("DistanceX", 24, 2, 29, 3, 12.478099))
sketch5.addConstraint(Sketcher.Constraint("DistanceY", 24, 2, 29, 3, 8.427098))
sketch5.addConstraint(Sketcher.Constraint("DistanceX", 25, 2, 27, 2, 14.677199))
sketch5.addConstraint(Sketcher.Constraint("Distance", 26, 12.935321))
sketch5.addConstraint(Sketcher.Constraint("DistanceX", -1, 1, 25, 3, 96.442632))
sketch5.addConstraint(Sketcher.Constraint("DistanceX", -1, 1, 33, 3, 163.557368))
pocket4 = body.newObject("PartDesign::Pocket", "Pocket003")
pocket4.Profile = sketch5
pocket4.Length = 3.18
pocket4.Reversed = True

doc.recompute()
